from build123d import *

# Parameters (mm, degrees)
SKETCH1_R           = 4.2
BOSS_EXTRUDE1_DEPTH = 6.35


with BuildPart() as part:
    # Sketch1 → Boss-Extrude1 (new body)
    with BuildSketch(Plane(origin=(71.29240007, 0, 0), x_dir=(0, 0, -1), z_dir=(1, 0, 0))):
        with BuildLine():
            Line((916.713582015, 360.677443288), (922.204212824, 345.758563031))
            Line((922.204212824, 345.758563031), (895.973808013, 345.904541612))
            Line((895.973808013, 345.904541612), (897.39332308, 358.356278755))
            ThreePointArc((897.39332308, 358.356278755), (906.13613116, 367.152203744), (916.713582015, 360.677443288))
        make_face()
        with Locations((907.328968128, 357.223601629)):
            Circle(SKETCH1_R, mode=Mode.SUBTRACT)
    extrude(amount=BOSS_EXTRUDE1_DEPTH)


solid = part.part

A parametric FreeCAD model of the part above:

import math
import FreeCAD as App
import Part
import Sketcher

V = App.Vector

doc = App.newDocument("Part")
body = doc.addObject("PartDesign::Body", "Body")

# Sketch on YZ plane
sketch1 = body.newObject("Sketcher::SketchObject", "Sketch")
sketch1.AttachmentSupport = (doc.getObject("YZ_Plane"), [""])
sketch1.MapMode = "FlatFace"
sketch1.AttachmentOffset = App.Placement(V(0, 0, 71.2924), App.Rotation())
sketch1.addGeometry([
    Part.LineSegment(V(345.8, -922.2, 0), V(360.7, -916.7, 0)),  # 0
    Part.ArcOfCircle(Part.Circle(V(357.2, -907.3, 0), V(0, 0, 1), 10), math.radians(-70), math.radians(83)),  # 1
    Part.LineSegment(V(358.4, -897.4, 0), V(345.9, -896, 0)),  # 2
    Part.LineSegment(V(345.9, -896, 0), V(345.8, -922.2, 0)),  # 3
    Part.Circle(V(357.2, -907.3, 0), V(0, 0, 1), 4.2),  # 4
], False)
sketch1.addConstraint([
    Sketcher.Constraint("Tangent", 0, 2, 1, 1),
    Sketcher.Constraint("Tangent", 1, 2, 2, 1),
    Sketcher.Constraint("Coincident", 2, 2, 3, 1),
    Sketcher.Constraint("Coincident", 3, 2, 0, 1),
    Sketcher.Constraint("Coincident", 4, 3, 1, 3),
    Sketcher.Constraint("Radius", 1, 10.0),
    Sketcher.Constraint("Diameter", 4, 8.4),
    Sketcher.Constraint("DistanceX", -1, 1, 1, 3, 357.223602),
    Sketcher.Constraint("DistanceX", 2, 2, 0, 2, 14.772902),
    Sketcher.Constraint("Distance", 0, 15.89717),
    Sketcher.Constraint("Distance", 2, 12.532389),
    Sketcher.Constraint("Distance", 3, 26.230811),
    Sketcher.Constraint("DistanceY", 1, 3, -1, 1, 907.328968),
])
pad1 = body.newObject("PartDesign::Pad", "Pad")
pad1.Profile = sketch1
pad1.Length = 6.35

doc.recompute()
